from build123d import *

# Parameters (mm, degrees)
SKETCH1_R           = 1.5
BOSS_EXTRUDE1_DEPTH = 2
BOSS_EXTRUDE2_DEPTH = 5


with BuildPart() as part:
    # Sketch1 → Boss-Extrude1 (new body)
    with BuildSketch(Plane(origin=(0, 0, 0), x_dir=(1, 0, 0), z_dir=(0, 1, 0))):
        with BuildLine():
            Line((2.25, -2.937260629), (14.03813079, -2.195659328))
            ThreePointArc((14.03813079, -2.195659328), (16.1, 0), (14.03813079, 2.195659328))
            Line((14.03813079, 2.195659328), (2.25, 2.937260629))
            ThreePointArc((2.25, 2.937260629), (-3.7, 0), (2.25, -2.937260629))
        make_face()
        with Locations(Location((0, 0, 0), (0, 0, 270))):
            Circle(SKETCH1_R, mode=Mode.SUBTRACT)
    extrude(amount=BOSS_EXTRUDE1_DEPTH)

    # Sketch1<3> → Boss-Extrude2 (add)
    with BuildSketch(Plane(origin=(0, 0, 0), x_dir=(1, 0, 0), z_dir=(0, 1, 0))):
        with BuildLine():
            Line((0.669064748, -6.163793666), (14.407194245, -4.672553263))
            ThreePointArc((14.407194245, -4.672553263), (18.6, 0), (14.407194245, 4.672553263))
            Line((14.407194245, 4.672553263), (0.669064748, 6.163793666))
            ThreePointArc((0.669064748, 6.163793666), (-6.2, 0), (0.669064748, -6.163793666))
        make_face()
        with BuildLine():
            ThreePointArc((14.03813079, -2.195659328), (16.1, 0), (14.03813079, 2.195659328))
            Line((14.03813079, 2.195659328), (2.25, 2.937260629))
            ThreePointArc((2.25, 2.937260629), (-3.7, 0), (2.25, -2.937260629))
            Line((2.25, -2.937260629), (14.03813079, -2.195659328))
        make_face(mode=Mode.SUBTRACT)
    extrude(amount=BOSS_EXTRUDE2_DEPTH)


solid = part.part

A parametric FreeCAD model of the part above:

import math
import FreeCAD as App
import Part
import Sketcher

V = App.Vector
Q = App.Units.Quantity

doc = App.newDocument("Part")
params = doc.addObject("Spreadsheet::Sheet", "Params")
for row, (alias, value) in enumerate([
    ("sketch1_diameter", "3 mm"),
    ("sketch1_radius", "2.2 mm"),
    ("sketch1_radius2", "3.7 mm"),
    ("pad1_length", "2 mm"),
    ("sketch2_radius", "4.7 mm"),
    ("sketch2_radius2", "6.2 mm"),
    ("sketch2_radius3", "2.2 mm"),
    ("sketch2_radius4", "3.7 mm"),
    ("pad2_length", "5 mm"),
], start=1):
    params.set(f"A{row}", alias)
    params.set(f"B{row}", "=" + value)
    params.setAlias(f"B{row}", alias)

body = doc.addObject("PartDesign::Body", "Body")

# Sketch on XZ plane
sketch1 = body.newObject("Sketcher::SketchObject", "Sketch")
sketch1.AttachmentSupport = (doc.getObject("XZ_Plane"), [""])
sketch1.MapMode = "FlatFace"
sketch1.addGeometry([
    Part.LineSegment(V(2.2, 2.9, 0), V(14, 2.2, 0)),  # 0
    Part.ArcOfCircle(Part.Circle(V(13.9, 0, 0), V(0, 0, 1), 2.2), math.radians(-86), math.radians(86)),  # 1
    Part.LineSegment(V(14, -2.2, 0), V(2.2, -2.9, 0)),  # 2
    Part.ArcOfCircle(Part.Circle(V(0, 0, 0), V(0, 0, 1), 3.7), math.radians(53), math.radians(307)),  # 3
    Part.Circle(V(0, 0, 0), V(0, 0, 1), 1.5),  # 4
], False)
sketch1.addConstraint([
    Sketcher.Constraint("Tangent", 0, 2, 1, 2),
    Sketcher.Constraint("Tangent", 1, 1, 2, 1),
    Sketcher.Constraint("Coincident", 2, 2, 3, 2),
    Sketcher.Constraint("Coincident", 3, 1, 0, 1),
    Sketcher.Constraint("Coincident", 3, 3, -1, 1),
    Sketcher.Constraint("Coincident", 4, 3, -1, 1),
    Sketcher.Constraint("Symmetric", 0, 2, 1, 1, -1),
    Sketcher.Constraint("Diameter", 4, Q("3 mm")),
    Sketcher.Constraint("Radius", 1, Q("2.2 mm")),
    Sketcher.Constraint("Radius", 3, Q("3.7 mm")),
    Sketcher.Constraint("DistanceX", -1, 1, 1, 3, Q("13.9 mm")),
    Sketcher.Constraint("DistanceX", -1, 1, 2, 2, Q("2.25 mm")),
])
sketch1.setExpression("Constraints[7]", "Params.sketch1_diameter")
sketch1.setExpression("Constraints[8]", "Params.sketch1_radius")
sketch1.setExpression("Constraints[9]", "Params.sketch1_radius2")
pad1 = body.newObject("PartDesign::Pad", "Pad")
pad1.Profile = sketch1
pad1.setExpression("Length", "Params.pad1_length")
pad1.Reversed = True

# Sketch on XZ plane
sketch2 = body.newObject("Sketcher::SketchObject", "Sketch001")
sketch2.AttachmentSupport = (doc.getObject("XZ_Plane"), [""])
sketch2.MapMode = "FlatFace"
sketch2.addGeometry([
    Part.LineSegment(V(0.7, 6.2, 0), V(14.4, 4.7, 0)),  # 0
    Part.ArcOfCircle(Part.Circle(V(13.9, 0, 0), V(0, 0, 1), 4.7), math.radians(-84), math.radians(84)),  # 1
    Part.LineSegment(V(14.4, -4.7, 0), V(0.7, -6.2, 0)),  # 2
    Part.ArcOfCircle(Part.Circle(V(0, 0, 0), V(0, 0, 1), 6.2), math.radians(84), math.radians(276)),  # 3
    Part.ArcOfCircle(Part.Circle(V(13.9, 0, 0), V(0, 0, 1), 2.2), math.radians(-86), math.radians(86)),  # 4
    Part.LineSegment(V(14, 2.2, 0), V(2.2, 2.9, 0)),  # 5
    Part.ArcOfCircle(Part.Circle(V(0, 0, 0), V(0, 0, 1), 3.7), math.radians(53), math.radians(307)),  # 6
    Part.LineSegment(V(2.2, -2.9, 0), V(14, -2.2, 0)),  # 7
], False)
sketch2.addConstraint([
    Sketcher.Constraint("Tangent", 0, 2, 1, 2),
    Sketcher.Constraint("Tangent", 1, 1, 2, 1),
    Sketcher.Constraint("Tangent", 2, 2, 3, 2),
    Sketcher.Constraint("Tangent", 3, 1, 0, 1),
    Sketcher.Constraint("Tangent", 4, 2, 5, 1),
    Sketcher.Constraint("Coincident", 5, 2, 6, 1),
    Sketcher.Constraint("Coincident", 6, 2, 7, 1),
    Sketcher.Constraint("Tangent", 7, 2, 4, 1),
    Sketcher.Constraint("Coincident", 3, 3, -1, 1),
    Sketcher.Constraint("Coincident", 6, 3, -1, 1),
    Sketcher.Constraint("Coincident", 4, 3, 1, 3),
    Sketcher.Constraint("Symmetric", 4, 2, 7, 2, -1),
    Sketcher.Constraint("Radius", 1, Q("4.7 mm")),
    Sketcher.Constraint("Radius", 3, Q("6.2 mm")),
    Sketcher.Constraint("Radius", 4, Q("2.2 mm")),
    Sketcher.Constraint("Radius", 6, Q("3.7 mm")),
    Sketcher.Constraint("DistanceX", -1, 1, 1, 3, Q("13.9 mm")),
    Sketcher.Constraint("DistanceX", -1, 1, 5, 2, Q("2.25 mm")),
])
sketch2.setExpression("Constraints[12]", "Params.sketch2_radius")
sketch2.setExpression("Constraints[13]", "Params.sketch2_radius2")
sketch2.setExpression("Constraints[14]", "Params.sketch2_radius3")
sketch2.setExpression("Constraints[15]", "Params.sketch2_radius4")
pad2 = body.newObject("PartDesign::Pad", "Pad001")
pad2.Profile = sketch2
pad2.setExpression("Length", "Params.pad2_length")
pad2.Reversed = True

doc.recompute()
